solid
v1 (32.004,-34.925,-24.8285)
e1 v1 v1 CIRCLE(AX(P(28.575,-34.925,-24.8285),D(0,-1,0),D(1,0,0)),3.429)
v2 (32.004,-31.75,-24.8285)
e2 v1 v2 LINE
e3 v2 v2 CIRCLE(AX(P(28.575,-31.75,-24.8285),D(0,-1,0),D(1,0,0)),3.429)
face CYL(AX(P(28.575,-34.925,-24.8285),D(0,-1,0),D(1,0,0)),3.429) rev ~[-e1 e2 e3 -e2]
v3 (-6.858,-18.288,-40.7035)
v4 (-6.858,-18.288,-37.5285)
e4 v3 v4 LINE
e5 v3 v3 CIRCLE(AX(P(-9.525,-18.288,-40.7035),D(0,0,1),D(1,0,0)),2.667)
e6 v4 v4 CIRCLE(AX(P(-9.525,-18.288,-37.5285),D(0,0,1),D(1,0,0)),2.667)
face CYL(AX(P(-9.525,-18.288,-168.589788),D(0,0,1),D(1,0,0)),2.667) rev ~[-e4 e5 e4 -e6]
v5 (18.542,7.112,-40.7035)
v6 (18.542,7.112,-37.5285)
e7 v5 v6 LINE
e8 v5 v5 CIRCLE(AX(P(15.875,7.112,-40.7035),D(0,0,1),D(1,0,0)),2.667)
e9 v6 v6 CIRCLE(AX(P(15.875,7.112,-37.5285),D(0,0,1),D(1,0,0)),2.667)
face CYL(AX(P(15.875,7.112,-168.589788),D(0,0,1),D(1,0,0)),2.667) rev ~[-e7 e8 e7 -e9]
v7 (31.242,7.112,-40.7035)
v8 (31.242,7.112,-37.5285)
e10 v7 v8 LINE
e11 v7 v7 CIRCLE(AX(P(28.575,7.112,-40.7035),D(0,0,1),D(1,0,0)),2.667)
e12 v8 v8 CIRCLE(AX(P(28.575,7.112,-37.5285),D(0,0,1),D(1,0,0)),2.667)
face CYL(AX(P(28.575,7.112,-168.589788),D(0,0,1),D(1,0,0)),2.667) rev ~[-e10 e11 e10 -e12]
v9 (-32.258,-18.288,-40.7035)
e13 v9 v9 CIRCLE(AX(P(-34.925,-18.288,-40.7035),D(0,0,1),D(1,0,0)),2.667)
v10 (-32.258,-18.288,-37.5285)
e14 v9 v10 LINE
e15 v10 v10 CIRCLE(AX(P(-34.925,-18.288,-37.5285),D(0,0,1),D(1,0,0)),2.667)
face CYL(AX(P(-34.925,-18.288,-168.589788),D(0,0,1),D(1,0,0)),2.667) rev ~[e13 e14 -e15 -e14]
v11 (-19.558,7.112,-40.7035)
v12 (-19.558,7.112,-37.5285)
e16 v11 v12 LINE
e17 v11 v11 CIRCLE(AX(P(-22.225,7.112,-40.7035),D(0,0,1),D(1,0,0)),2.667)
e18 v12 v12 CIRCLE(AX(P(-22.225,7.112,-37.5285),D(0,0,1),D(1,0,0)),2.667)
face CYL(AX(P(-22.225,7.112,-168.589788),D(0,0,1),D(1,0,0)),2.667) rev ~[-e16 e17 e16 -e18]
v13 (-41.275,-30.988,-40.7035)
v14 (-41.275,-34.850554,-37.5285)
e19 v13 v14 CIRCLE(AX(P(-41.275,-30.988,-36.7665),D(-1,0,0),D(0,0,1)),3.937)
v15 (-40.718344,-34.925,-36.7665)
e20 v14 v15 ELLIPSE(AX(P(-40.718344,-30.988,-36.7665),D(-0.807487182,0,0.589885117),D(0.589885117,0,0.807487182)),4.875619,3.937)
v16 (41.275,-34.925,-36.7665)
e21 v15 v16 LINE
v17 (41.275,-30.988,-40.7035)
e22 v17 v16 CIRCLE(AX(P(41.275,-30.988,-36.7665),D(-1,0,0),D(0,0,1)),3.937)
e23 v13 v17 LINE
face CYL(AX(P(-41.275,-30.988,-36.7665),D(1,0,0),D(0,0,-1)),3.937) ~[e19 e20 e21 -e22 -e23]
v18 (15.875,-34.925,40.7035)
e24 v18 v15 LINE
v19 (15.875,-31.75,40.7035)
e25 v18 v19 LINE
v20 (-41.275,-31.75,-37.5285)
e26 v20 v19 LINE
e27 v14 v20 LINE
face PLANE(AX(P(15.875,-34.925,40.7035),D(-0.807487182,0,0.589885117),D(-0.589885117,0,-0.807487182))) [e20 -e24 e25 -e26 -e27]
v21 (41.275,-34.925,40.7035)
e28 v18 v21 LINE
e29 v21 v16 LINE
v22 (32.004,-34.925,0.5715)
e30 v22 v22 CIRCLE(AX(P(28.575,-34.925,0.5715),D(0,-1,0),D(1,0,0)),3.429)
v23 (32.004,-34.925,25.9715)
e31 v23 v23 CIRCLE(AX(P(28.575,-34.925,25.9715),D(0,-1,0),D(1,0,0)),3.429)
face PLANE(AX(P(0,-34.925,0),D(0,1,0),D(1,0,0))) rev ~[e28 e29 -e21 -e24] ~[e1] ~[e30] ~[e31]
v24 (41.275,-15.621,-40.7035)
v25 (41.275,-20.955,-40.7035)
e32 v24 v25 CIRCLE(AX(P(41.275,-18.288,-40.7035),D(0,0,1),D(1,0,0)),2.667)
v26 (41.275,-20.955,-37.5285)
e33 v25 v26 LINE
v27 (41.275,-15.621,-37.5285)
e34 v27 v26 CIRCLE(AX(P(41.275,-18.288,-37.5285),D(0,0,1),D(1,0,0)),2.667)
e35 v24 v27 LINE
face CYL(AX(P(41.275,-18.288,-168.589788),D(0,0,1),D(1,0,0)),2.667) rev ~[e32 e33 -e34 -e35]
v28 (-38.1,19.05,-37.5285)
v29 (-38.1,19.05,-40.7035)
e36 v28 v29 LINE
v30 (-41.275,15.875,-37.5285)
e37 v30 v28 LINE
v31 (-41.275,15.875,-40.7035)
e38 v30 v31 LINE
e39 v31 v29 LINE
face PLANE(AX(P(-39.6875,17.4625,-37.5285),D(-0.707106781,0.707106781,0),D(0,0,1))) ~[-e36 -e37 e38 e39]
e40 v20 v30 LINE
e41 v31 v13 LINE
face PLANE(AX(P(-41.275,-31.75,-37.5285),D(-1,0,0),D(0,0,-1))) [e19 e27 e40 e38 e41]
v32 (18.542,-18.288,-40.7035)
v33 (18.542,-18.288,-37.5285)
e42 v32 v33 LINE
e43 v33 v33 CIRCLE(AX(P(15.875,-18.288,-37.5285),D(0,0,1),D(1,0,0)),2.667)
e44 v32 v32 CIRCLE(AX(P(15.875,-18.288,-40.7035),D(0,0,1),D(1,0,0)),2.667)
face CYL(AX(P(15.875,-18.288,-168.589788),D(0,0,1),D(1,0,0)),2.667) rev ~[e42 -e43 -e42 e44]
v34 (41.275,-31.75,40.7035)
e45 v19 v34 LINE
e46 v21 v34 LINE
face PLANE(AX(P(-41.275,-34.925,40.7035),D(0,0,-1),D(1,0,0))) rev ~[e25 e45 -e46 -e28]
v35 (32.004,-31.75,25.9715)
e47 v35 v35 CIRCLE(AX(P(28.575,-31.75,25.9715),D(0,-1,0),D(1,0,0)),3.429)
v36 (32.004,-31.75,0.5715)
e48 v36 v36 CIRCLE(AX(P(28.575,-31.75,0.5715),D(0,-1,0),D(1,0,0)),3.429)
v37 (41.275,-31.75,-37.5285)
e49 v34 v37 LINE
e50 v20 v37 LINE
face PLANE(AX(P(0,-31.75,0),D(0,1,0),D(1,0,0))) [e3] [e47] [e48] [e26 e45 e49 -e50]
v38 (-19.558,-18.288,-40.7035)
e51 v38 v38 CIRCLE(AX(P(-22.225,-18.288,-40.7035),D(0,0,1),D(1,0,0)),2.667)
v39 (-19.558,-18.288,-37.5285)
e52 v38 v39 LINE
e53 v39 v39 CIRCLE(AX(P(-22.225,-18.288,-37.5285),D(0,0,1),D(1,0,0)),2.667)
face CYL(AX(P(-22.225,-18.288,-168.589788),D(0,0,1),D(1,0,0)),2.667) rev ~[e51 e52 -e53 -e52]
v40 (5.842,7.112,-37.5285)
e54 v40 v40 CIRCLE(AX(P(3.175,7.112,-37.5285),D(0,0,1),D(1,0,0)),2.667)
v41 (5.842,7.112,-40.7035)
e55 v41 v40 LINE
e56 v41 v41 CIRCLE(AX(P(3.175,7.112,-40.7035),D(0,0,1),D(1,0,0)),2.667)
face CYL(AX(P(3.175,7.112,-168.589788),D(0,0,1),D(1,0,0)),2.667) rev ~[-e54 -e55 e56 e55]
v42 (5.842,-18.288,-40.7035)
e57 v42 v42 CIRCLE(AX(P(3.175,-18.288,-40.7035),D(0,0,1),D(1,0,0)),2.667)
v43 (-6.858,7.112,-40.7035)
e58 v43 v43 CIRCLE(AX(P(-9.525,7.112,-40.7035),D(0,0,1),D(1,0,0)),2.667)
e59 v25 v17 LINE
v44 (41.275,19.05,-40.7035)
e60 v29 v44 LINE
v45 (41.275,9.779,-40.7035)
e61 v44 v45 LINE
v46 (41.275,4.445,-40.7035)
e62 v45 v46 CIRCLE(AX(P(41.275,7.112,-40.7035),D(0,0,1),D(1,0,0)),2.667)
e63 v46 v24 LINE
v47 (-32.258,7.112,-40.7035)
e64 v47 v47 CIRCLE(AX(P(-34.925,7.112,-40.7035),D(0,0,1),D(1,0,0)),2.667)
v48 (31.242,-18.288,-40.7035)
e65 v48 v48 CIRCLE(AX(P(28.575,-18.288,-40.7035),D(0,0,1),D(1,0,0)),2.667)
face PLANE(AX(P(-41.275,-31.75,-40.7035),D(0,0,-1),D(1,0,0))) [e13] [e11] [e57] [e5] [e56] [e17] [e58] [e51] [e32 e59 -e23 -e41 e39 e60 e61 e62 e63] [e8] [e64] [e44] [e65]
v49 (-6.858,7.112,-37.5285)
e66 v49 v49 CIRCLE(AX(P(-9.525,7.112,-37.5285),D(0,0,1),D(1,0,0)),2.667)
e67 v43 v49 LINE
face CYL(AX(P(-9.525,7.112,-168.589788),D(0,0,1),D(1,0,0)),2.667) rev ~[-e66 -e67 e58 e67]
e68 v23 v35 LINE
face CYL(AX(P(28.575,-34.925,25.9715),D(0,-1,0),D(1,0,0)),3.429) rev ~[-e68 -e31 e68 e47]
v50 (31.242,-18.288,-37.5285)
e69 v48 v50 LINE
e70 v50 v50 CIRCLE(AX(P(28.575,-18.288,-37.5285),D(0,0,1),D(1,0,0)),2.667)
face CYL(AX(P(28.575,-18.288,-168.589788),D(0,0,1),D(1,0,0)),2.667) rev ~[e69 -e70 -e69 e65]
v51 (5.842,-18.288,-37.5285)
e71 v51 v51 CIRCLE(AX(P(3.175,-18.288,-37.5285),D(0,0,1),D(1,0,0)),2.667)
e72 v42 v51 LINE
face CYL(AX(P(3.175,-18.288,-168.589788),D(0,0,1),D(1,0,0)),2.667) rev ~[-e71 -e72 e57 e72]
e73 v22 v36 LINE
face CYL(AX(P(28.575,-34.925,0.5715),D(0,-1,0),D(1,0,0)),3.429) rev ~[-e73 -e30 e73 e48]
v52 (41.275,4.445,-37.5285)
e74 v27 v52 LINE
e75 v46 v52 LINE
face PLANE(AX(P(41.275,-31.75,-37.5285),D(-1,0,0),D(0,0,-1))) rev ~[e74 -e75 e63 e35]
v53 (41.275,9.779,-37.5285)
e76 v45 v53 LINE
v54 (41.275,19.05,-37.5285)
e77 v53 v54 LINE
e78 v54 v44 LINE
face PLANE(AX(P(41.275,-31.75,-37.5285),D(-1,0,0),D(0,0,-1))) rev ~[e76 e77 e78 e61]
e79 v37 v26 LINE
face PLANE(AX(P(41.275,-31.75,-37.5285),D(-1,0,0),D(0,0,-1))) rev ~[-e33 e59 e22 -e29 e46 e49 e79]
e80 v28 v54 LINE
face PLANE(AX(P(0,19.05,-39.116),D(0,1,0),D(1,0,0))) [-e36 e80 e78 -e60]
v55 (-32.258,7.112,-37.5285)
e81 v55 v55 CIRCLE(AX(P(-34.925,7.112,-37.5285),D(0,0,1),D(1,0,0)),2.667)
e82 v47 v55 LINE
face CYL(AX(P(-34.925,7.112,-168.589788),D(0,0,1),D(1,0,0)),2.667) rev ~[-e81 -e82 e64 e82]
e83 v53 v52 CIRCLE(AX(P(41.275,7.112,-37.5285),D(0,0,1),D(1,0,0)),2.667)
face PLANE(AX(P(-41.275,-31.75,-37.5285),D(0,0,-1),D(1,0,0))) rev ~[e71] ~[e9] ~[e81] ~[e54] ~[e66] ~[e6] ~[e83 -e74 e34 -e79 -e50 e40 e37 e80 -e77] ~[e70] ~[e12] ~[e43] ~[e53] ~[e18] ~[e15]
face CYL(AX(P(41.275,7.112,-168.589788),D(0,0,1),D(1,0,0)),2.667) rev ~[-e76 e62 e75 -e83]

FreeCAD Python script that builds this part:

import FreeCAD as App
import Part
import Sketcher

V = App.Vector
Q = App.Units.Quantity


def edges_at(feature, points):
    """Names of the edges that pass closest to the given points."""
    edges = feature.Shape.Edges
    near = lambda p: min(range(len(edges)), key=lambda i: edges[i].distToShape(Part.Vertex(*p))[0])
    return sorted({f"Edge{near(p) + 1}" for p in points})

doc = App.newDocument("Part")
body = doc.addObject("PartDesign::Body", "Body")

# Sketch on XZ plane
sketch1 = body.newObject("Sketcher::SketchObject", "Sketch")
sketch1.AttachmentSupport = (doc.getObject("XZ_Plane"), [""])
sketch1.MapMode = "FlatFace"
sketch1.AttachmentOffset = App.Placement(V(0, 0, 1.375 * 25.4), App.Rotation())
sketch1.addGeometry([
    Part.LineSegment(V(-41, -41, 0), V(-41, 41, 0)),
    Part.LineSegment(V(-41, 41, 0), V(41, 41, 0)),
    Part.LineSegment(V(41, 41, 0), V(41, -41, 0)),
    Part.LineSegment(V(41, -41, 0), V(-41, -41, 0)),
], False)
sketch1.addConstraint([
    Sketcher.Constraint("Coincident", 0, 2, 1, 1),
    Sketcher.Constraint("Coincident", 1, 2, 2, 1),
    Sketcher.Constraint("Coincident", 2, 2, 3, 1),
    Sketcher.Constraint("Coincident", 3, 2, 0, 1),
    Sketcher.Constraint("Vertical", 0),
    Sketcher.Constraint("Horizontal", 1),
    Sketcher.Constraint("Vertical", 2),
    Sketcher.Constraint("Horizontal", 3),
    Sketcher.Constraint("Symmetric", 0, 2, 2, 2, -1, 1),
    Sketcher.Constraint("DistanceX", 1, 1, 1, 2, Q("3.25 in")),
    Sketcher.Constraint("DistanceY", 0, 1, 0, 2, Q("3.205 in")),
])
pad1 = body.newObject("PartDesign::Pad", "Pad")
pad1.Profile = sketch1
pad1.Length = Q("0.125 in")
pad1.Reversed = True

# Sketch on XZ plane
sketch2 = body.newObject("Sketcher::SketchObject", "Sketch001")
sketch2.AttachmentSupport = (doc.getObject("XZ_Plane"), [""])
sketch2.MapMode = "FlatFace"
sketch2.AttachmentOffset = App.Placement(V(0, 0, 1.25 * 25.4), App.Rotation())
sketch2.addGeometry([
    Part.LineSegment(V(-41.3, -40.7, 0), V(-41.3, -37.5, 0)),
    Part.LineSegment(V(-41.3, -37.5, 0), V(41.3, -37.5, 0)),
    Part.LineSegment(V(41.3, -37.5, 0), V(41.3, -40.7, 0)),
    Part.LineSegment(V(41.3, -40.7, 0), V(-41.3, -40.7, 0)),
], False)
sketch2.addConstraint([
    Sketcher.Constraint("Coincident", 0, 2, 1, 1),
    Sketcher.Constraint("Coincident", 1, 2, 2, 1),
    Sketcher.Constraint("Coincident", 2, 2, 3, 1),
    Sketcher.Constraint("Coincident", 3, 2, 0, 1),
    Sketcher.Constraint("Vertical", 0),
    Sketcher.Constraint("Horizontal", 1),
    Sketcher.Constraint("Vertical", 2),
    Sketcher.Constraint("Horizontal", 3),
    Sketcher.Constraint("DistanceX", 1, 1, 1, 2, Q("3.25 in")),
    Sketcher.Constraint("DistanceY", 0, 1, 0, 2, Q("0.125 in")),
    Sketcher.Constraint("DistanceX", 0, 2, -1, 1, Q("1.625 in")),
    Sketcher.Constraint("DistanceY", 0, 2, -1, 1, Q("1.4775 in")),
])
pad2 = body.newObject("PartDesign::Pad", "Pad001")
pad2.Profile = sketch2
pad2.Length = Q("2 in")
pad2.Reversed = True

# Sketch on XY plane
sketch3 = body.newObject("Sketcher::SketchObject", "Sketch002")
sketch3.AttachmentSupport = (doc.getObject("XY_Plane"), [""])
sketch3.MapMode = "FlatFace"
sketch3.AttachmentOffset = App.Placement(V(0, 0, -1.6025 * 25.4), App.Rotation())
sketch3.addGeometry([
    Part.Circle(V(-22.2, 7.1, 0), V(0, 0, 1), 2.7),  # 0
    Part.Circle(V(-9.5, 7.1, 0), V(0, 0, 1), 2.7),  # 1
    Part.Circle(V(3.2, 7.1, 0), V(0, 0, 1), 2.7),  # 2
    Part.Circle(V(15.9, 7.1, 0), V(0, 0, 1), 2.7),  # 3
    Part.Circle(V(28.6, 7.1, 0), V(0, 0, 1), 2.7),  # 4
    Part.Circle(V(-22.2, -18.3, 0), V(0, 0, 1), 2.7),  # 5
    Part.Circle(V(-9.5, -18.3, 0), V(0, 0, 1), 2.7),  # 6
    Part.Circle(V(3.2, -18.3, 0), V(0, 0, 1), 2.7),  # 7
    Part.Circle(V(15.9, -18.3, 0), V(0, 0, 1), 2.7),  # 8
    Part.Circle(V(28.6, -18.3, 0), V(0, 0, 1), 2.7),  # 9
    Part.Circle(V(-34.9, 7.1, 0), V(0, 0, 1), 2.7),  # 10
    Part.Circle(V(-34.9, -18.3, 0), V(0, 0, 1), 2.7),  # 11
    Part.Circle(V(41.3, 7.1, 0), V(0, 0, 1), 2.7),  # 12
    Part.Circle(V(41.3, -18.3, 0), V(0, 0, 1), 2.7),  # 13
], False)
sketch3.addConstraint([
    Sketcher.Constraint("Equal", 0, 1),
    Sketcher.Constraint("Equal", 1, 2),
    Sketcher.Constraint("Equal", 2, 3),
    Sketcher.Constraint("Equal", 3, 4),
    Sketcher.Constraint("Equal", 4, 5),
    Sketcher.Constraint("Equal", 5, 6),
    Sketcher.Constraint("Equal", 6, 7),
    Sketcher.Constraint("Equal", 7, 8),
    Sketcher.Constraint("Equal", 8, 9),
    Sketcher.Constraint("Equal", 9, 10),
    Sketcher.Constraint("Equal", 10, 11),
    Sketcher.Constraint("Equal", 11, 12),
    Sketcher.Constraint("Equal", 12, 13),
    Sketcher.Constraint("Horizontal", 0, 3, 1, 3),
    Sketcher.Constraint("Horizontal", 1, 3, 2, 3),
    Sketcher.Constraint("Horizontal", 2, 3, 3, 3),
    Sketcher.Constraint("Horizontal", 3, 3, 4, 3),
    Sketcher.Constraint("Horizontal", 5, 3, 6, 3),
    Sketcher.Constraint("Horizontal", 6, 3, 7, 3),
    Sketcher.Constraint("Horizontal", 7, 3, 8, 3),
    Sketcher.Constraint("Horizontal", 8, 3, 9, 3),
    Sketcher.Constraint("Horizontal", 4, 3, 10, 3),
    Sketcher.Constraint("Horizontal", 9, 3, 11, 3),
    Sketcher.Constraint("Horizontal", 10, 3, 12, 3),
    Sketcher.Constraint("Horizontal", 11, 3, 13, 3),
    Sketcher.Constraint("Vertical", 0, 3, 5, 3),
    Sketcher.Constraint("Vertical", 1, 3, 6, 3),
    Sketcher.Constraint("Vertical", 2, 3, 7, 3),
    Sketcher.Constraint("Vertical", 3, 3, 8, 3),
    Sketcher.Constraint("Vertical", 4, 3, 9, 3),
    Sketcher.Constraint("Vertical", 10, 3, 11, 3),
    Sketcher.Constraint("Vertical", 12, 3, 13, 3),
    Sketcher.Constraint("Diameter", 0, Q("0.21 in")),
    Sketcher.Constraint("DistanceX", 0, 3, 2, 3, Q("1 in")),
    Sketcher.Constraint("DistanceX", 1, 3, 3, 3, Q("1 in")),
    Sketcher.Constraint("DistanceX", 2, 3, 4, 3, Q("1 in")),
    Sketcher.Constraint("DistanceY", 5, 3, 0, 3, Q("1 in")),
    Sketcher.Constraint("DistanceX", 10, 3, 1, 3, Q("1 in")),
    Sketcher.Constraint("DistanceX", 3, 3, 12, 3, Q("1 in")),
    Sketcher.Constraint("DistanceX", 0, 3, 1, 3, Q("0.5 in")),
    Sketcher.Constraint("DistanceY", -1, 1, 0, 3, Q("0.28 in")),
    Sketcher.Constraint("DistanceX", 0, 3, -1, 1, Q("0.875 in")),
])
doc.recompute()
hole = body.newObject("PartDesign::Hole", "Hole")
hole.Profile = sketch3
hole.ThreadType = "None"
hole.Diameter = Q("0.21 in")
hole.DepthType = "ThroughAll"
hole.Reversed = True
doc.recompute()

chamfer = body.newObject("PartDesign::Chamfer", "Chamfer")
chamfer.Base = (hole, edges_at(hole, [(-41.275, 19.05, -39.116)]))
chamfer.Size = Q("0.125 in")
doc.recompute()

fillet = body.newObject("PartDesign::Fillet", "Fillet")
fillet.Base = (chamfer, edges_at(chamfer, [(0, -34.925, -40.703)]))
fillet.Radius = Q("0.155 in")

# Sketch on XZ plane
sketch4 = body.newObject("Sketcher::SketchObject", "Sketch003")
sketch4.AttachmentSupport = (doc.getObject("XZ_Plane"), [""])
sketch4.MapMode = "FlatFace"
sketch4.AttachmentOffset = App.Placement(V(0, 0, 1.375 * 25.4), App.Rotation())
sketch4.addGeometry([
    Part.Circle(V(28.6, -24.8, 0), V(0, 0, 1), 3.4),  # 0
    Part.Circle(V(28.6, 0.6, 0), V(0, 0, 1), 3.4),  # 1
    Part.Circle(V(28.6, 26, 0), V(0, 0, 1), 3.4),  # 2
    Part.LineSegment(V(-41.3, 40.7, 0), V(-41.3, -37.5, 0)),  # 3
    Part.LineSegment(V(-41.3, -37.5, 0), V(15.9, 40.7, 0)),  # 4
    Part.LineSegment(V(15.9, 40.7, 0), V(-41.3, 40.7, 0)),  # 5
], False)
sketch4.addConstraint([
    Sketcher.Constraint("Coincident", 3, 2, 4, 1),
    Sketcher.Constraint("Coincident", 4, 2, 5, 1),
    Sketcher.Constraint("Coincident", 5, 2, 3, 1),
    Sketcher.Constraint("Vertical", 3),
    Sketcher.Constraint("Horizontal", 5),
    Sketcher.Constraint("Equal", 0, 1),
    Sketcher.Constraint("Equal", 1, 2),
    Sketcher.Constraint("Vertical", 0, 3, 1, 3),
    Sketcher.Constraint("Vertical", 1, 3, 2, 3),
    Sketcher.Constraint("Diameter", 0, Q("0.27 in")),
    Sketcher.Constraint("DistanceY", 0, 3, 1, 3, Q("1 in")),
    Sketcher.Constraint("DistanceY", 1, 3, 2, 3, Q("1 in")),
    Sketcher.Constraint("DistanceX", 5, 2, 5, 1, Q("2.25 in")),
    Sketcher.Constraint("DistanceY", 3, 2, 3, 1, Q("3.08 in")),
    Sketcher.Constraint("DistanceY", 3, 2, 0, 3, Q("0.5 in")),
    Sketcher.Constraint("DistanceX", 4, 2, 2, 3, Q("0.5 in")),
    Sketcher.Constraint("DistanceX", -1, 1, 0, 3, Q("1.125 in")),
    Sketcher.Constraint("DistanceY", 0, 3, -1, 1, Q("0.9775 in")),
])
pocket1 = body.newObject("PartDesign::Pocket", "Pocket")
pocket1.Profile = sketch4
pocket1.Type = "ThroughAll"

doc.recompute()
